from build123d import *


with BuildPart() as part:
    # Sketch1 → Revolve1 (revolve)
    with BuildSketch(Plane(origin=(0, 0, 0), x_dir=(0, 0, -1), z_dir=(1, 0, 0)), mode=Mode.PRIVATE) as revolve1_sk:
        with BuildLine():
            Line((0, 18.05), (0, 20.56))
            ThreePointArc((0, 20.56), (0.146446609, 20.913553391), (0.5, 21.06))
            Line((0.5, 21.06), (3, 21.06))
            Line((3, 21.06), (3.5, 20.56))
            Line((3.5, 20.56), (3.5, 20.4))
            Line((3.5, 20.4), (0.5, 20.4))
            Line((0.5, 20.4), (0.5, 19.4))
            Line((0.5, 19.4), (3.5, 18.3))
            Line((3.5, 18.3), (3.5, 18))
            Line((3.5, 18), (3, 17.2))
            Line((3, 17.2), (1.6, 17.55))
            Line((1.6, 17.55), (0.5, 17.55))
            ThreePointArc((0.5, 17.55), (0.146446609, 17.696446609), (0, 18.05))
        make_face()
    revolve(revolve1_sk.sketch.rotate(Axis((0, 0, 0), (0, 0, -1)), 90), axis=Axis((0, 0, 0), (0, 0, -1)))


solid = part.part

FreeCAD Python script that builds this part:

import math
import FreeCAD as App
import Part
import Sketcher

V = App.Vector
Q = App.Units.Quantity

doc = App.newDocument("Part")
body = doc.addObject("PartDesign::Body", "Body")

sketch1 = body.newObject("Sketcher::SketchObject", "Sketch")
sketch1.AttachmentSupport = (doc.getObject("YZ_Plane"), [""])
sketch1.MapMode = "FlatFace"
sketch1.addGeometry([
    Part.LineSegment(V(20.56, 0, 0), V(18.05, 0, 0)),
    Part.ArcOfCircle(Part.Circle(V(18.05, -0.5, 0), V(0, 0, 1), 0.5), math.radians(90), math.radians(180)),
    Part.LineSegment(V(17.55, -0.5, 0), V(17.55, -1.6, 0)),
    Part.LineSegment(V(17.55, -1.6, 0), V(17.2, -3, 0)),
    Part.LineSegment(V(17.2, -3, 0), V(18, -3.5, 0)),
    Part.LineSegment(V(18, -3.5, 0), V(18.3, -3.5, 0)),
    Part.LineSegment(V(18.3, -3.5, 0), V(19.4, -0.5, 0)),
    Part.LineSegment(V(19.4, -0.5, 0), V(20.4, -0.5, 0)),
    Part.LineSegment(V(20.4, -0.5, 0), V(20.4, -3.5, 0)),
    Part.LineSegment(V(20.4, -3.5, 0), V(20.56, -3.5, 0)),
    Part.LineSegment(V(20.56, -3.5, 0), V(21.06, -3, 0)),
    Part.LineSegment(V(21.06, -3, 0), V(21.06, -0.5, 0)),
    Part.ArcOfCircle(Part.Circle(V(20.56, -0.5, 0), V(0, 0, 1), 0.5), math.radians(0), math.radians(90)),
], False)
sketch1.addConstraint([
    Sketcher.Constraint("Tangent", 0, 2, 1, 1),
    Sketcher.Constraint("Tangent", 1, 2, 2, 1),
    Sketcher.Constraint("Coincident", 2, 2, 3, 1),
    Sketcher.Constraint("Coincident", 3, 2, 4, 1),
    Sketcher.Constraint("Coincident", 4, 2, 5, 1),
    Sketcher.Constraint("Coincident", 5, 2, 6, 1),
    Sketcher.Constraint("Coincident", 6, 2, 7, 1),
    Sketcher.Constraint("Coincident", 7, 2, 8, 1),
    Sketcher.Constraint("Coincident", 8, 2, 9, 1),
    Sketcher.Constraint("Coincident", 9, 2, 10, 1),
    Sketcher.Constraint("Coincident", 10, 2, 11, 1),
    Sketcher.Constraint("Tangent", 11, 2, 12, 1),
    Sketcher.Constraint("Tangent", 12, 2, 0, 1),
    Sketcher.Constraint("Horizontal", 0),
    Sketcher.Constraint("Vertical", 2),
    Sketcher.Constraint("Horizontal", 5),
    Sketcher.Constraint("Horizontal", 7),
    Sketcher.Constraint("Vertical", 8),
    Sketcher.Constraint("Horizontal", 9),
    Sketcher.Constraint("Vertical", 11),
    Sketcher.Constraint("Equal", 1, 12),
    Sketcher.Constraint("PointOnObject", 0, 2, -1),
    Sketcher.Constraint("Horizontal", 1, 2, 6, 2),
    Sketcher.Constraint("Horizontal", 5, 2, 8, 2),
    Sketcher.Constraint("Horizontal", 3, 2, 10, 2),
    Sketcher.Constraint("Vertical", 12, 3, 9, 2),
    Sketcher.Constraint("Radius", 1, 0.5),
    Sketcher.Constraint("DistanceX", 7, 1, 7, 2, 1.0),
    Sketcher.Constraint("DistanceY", 8, 2, 8, 1, 3.0),
    Sketcher.Constraint("Angle", 10, Q("45 deg")),
    Sketcher.Constraint("DistanceX", 5, 1, 5, 2, 0.3),
    Sketcher.Constraint("DistanceY", 2, 2, 2, 1, 1.1),
    Sketcher.Constraint("DistanceX", -1, 1, 4, 2, 18.0),
    Sketcher.Constraint("DistanceX", 0, 2, 0, 1, 2.51),
    Sketcher.Constraint("DistanceX", 9, 1, 9, 2, 0.16),
    Sketcher.Constraint("DistanceX", -1, 1, 3, 2, 17.2),
    Sketcher.Constraint("DistanceX", -1, 1, 6, 2, 19.4),
])
revolution = body.newObject("PartDesign::Revolution", "Revolution")
revolution.Profile = sketch1
revolution.ReferenceAxis = (sketch1, ["V_Axis"])
revolution.Angle = 360

doc.recompute()
